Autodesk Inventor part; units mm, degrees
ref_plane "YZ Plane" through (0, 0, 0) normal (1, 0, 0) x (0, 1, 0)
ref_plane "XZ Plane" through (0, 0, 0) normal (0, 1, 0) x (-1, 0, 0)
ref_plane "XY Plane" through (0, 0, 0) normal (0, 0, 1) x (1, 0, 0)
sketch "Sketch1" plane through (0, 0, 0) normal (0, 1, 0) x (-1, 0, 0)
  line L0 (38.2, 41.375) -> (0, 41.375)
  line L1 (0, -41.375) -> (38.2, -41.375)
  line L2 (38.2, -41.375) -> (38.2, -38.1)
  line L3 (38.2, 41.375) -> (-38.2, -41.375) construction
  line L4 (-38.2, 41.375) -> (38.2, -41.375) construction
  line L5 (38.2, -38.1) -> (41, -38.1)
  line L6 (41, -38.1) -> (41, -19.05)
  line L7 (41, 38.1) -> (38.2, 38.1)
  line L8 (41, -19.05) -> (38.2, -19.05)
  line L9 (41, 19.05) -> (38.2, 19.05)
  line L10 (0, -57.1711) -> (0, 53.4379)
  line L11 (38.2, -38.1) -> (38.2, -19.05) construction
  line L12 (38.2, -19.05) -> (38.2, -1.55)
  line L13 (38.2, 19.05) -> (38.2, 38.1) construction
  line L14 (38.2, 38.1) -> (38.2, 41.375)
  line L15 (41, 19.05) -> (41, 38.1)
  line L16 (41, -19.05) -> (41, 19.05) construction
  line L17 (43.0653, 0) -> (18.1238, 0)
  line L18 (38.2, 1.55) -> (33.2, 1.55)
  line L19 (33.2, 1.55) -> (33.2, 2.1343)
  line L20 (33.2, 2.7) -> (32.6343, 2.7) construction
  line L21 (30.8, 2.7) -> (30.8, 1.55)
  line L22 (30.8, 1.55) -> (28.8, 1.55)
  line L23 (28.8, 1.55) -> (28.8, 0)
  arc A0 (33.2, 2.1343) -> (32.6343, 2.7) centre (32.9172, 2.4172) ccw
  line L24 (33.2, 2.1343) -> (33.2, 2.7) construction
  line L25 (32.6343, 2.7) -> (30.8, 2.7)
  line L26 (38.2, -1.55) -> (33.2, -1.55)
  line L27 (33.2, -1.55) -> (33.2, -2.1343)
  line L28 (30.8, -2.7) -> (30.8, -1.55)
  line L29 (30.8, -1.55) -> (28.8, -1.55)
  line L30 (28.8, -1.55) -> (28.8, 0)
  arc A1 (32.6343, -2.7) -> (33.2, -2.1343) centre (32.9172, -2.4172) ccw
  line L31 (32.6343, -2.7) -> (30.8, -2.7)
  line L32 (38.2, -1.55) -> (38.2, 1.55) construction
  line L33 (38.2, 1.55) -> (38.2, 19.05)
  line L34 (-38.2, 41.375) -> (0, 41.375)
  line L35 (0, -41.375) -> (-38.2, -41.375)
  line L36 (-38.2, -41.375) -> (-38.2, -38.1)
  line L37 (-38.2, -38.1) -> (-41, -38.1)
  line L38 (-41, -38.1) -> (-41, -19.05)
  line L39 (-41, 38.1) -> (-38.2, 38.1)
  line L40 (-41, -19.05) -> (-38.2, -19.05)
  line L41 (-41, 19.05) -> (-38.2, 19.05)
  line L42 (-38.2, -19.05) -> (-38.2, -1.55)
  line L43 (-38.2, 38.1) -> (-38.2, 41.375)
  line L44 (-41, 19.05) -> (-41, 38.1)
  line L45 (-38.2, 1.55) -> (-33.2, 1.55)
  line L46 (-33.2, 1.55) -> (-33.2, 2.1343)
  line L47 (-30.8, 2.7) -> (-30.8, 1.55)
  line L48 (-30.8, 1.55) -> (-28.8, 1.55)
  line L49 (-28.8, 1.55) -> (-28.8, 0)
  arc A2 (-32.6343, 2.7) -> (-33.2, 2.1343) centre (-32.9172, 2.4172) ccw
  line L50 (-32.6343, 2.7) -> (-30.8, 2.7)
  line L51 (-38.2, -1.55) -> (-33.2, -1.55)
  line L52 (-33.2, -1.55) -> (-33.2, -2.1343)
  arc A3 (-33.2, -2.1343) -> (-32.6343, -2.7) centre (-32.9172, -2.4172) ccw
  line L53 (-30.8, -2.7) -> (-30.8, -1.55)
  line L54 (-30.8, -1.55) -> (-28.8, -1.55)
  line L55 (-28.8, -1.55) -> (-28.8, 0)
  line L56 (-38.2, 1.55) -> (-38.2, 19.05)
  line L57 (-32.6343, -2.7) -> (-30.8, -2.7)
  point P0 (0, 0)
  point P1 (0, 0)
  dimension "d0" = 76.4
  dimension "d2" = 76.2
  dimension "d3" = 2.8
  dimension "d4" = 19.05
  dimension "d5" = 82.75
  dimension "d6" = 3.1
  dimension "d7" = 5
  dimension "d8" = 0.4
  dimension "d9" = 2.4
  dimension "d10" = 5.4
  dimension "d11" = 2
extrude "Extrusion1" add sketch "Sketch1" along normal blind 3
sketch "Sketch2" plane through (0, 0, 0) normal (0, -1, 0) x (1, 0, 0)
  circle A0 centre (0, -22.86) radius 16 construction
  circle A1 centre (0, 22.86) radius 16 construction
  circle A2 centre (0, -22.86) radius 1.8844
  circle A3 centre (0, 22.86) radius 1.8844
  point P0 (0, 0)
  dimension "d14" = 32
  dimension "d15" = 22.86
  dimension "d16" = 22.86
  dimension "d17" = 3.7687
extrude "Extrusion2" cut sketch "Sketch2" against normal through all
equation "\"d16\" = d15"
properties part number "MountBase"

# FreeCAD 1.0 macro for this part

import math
import FreeCAD as App
import Part
import Sketcher

V = App.Vector

doc = App.newDocument("Part")
body = doc.addObject("PartDesign::Body", "Body")

# Sketch on XZ plane
sketch1 = body.newObject("Sketcher::SketchObject", "Sketch")
sketch1.AttachmentSupport = (doc.getObject("XZ_Plane"), [""])
sketch1.MapMode = "FlatFace"
sketch1.addGeometry(Part.LineSegment(V(-38.2, 38.1, 0), V(-38.2, 41.38, 0)), False)
sketch1.addGeometry(Part.LineSegment(V(-38.2, 41.38, 0), V(38.2, 41.38, 0)), False)
sketch1.addGeometry(Part.LineSegment(V(38.2, 41.38, 0), V(38.2, 38.1, 0)), False)
sketch1.addGeometry(Part.LineSegment(V(38.2, 38.1, 0), V(41, 38.1, 0)), False)
sketch1.addGeometry(Part.LineSegment(V(41, 38.1, 0), V(41, 19.05, 0)), False)
sketch1.addGeometry(Part.LineSegment(V(41, 19.05, 0), V(38.2, 19.05, 0)), False)
sketch1.addGeometry(Part.LineSegment(V(38.2, 19.05, 0), V(38.2, 1.55, 0)), False)
sketch1.addGeometry(Part.LineSegment(V(38.2, 1.55, 0), V(33.2, 1.55, 0)), False)
sketch1.addGeometry(Part.LineSegment(V(33.2, 1.55, 0), V(33.2, 2.13, 0)), False)
sketch1.addGeometry(Part.ArcOfCircle(Part.Circle(V(32.92, 2.42, 0), V(0, 0, 1), 0.4), math.radians(-45), math.radians(135)), False)
sketch1.addGeometry(Part.LineSegment(V(32.63, 2.7, 0), V(30.8, 2.7, 0)), False)
sketch1.addGeometry(Part.LineSegment(V(30.8, 2.7, 0), V(30.8, 1.55, 0)), False)
sketch1.addGeometry(Part.LineSegment(V(30.8, 1.55, 0), V(28.8, 1.55, 0)), False)
sketch1.addGeometry(Part.LineSegment(V(28.8, 1.55, 0), V(28.8, -1.55, 0)), False)
sketch1.addGeometry(Part.LineSegment(V(28.8, -1.55, 0), V(30.8, -1.55, 0)), False)
sketch1.addGeometry(Part.LineSegment(V(30.8, -1.55, 0), V(30.8, -2.7, 0)), False)
sketch1.addGeometry(Part.LineSegment(V(30.8, -2.7, 0), V(32.63, -2.7, 0)), False)
sketch1.addGeometry(Part.ArcOfCircle(Part.Circle(V(32.92, -2.42, 0), V(0, 0, 1), 0.4), math.radians(-135), math.radians(45)), False)
sketch1.addGeometry(Part.LineSegment(V(33.2, -2.13, 0), V(33.2, -1.55, 0)), False)
sketch1.addGeometry(Part.LineSegment(V(33.2, -1.55, 0), V(38.2, -1.55, 0)), False)
sketch1.addGeometry(Part.LineSegment(V(38.2, -1.55, 0), V(38.2, -19.05, 0)), False)
sketch1.addGeometry(Part.LineSegment(V(38.2, -19.05, 0), V(41, -19.05, 0)), False)
sketch1.addGeometry(Part.LineSegment(V(41, -19.05, 0), V(41, -38.1, 0)), False)
sketch1.addGeometry(Part.LineSegment(V(41, -38.1, 0), V(38.2, -38.1, 0)), False)
sketch1.addGeometry(Part.LineSegment(V(38.2, -38.1, 0), V(38.2, -41.38, 0)), False)
sketch1.addGeometry(Part.LineSegment(V(38.2, -41.38, 0), V(-38.2, -41.38, 0)), False)
sketch1.addGeometry(Part.LineSegment(V(-38.2, -41.38, 0), V(-38.2, -38.1, 0)), False)
sketch1.addGeometry(Part.LineSegment(V(-38.2, -38.1, 0), V(-41, -38.1, 0)), False)
sketch1.addGeometry(Part.LineSegment(V(-41, -38.1, 0), V(-41, -19.05, 0)), False)
sketch1.addGeometry(Part.LineSegment(V(-41, -19.05, 0), V(-38.2, -19.05, 0)), False)
sketch1.addGeometry(Part.LineSegment(V(-38.2, -19.05, 0), V(-38.2, -1.55, 0)), False)
sketch1.addGeometry(Part.LineSegment(V(-38.2, -1.55, 0), V(-33.2, -1.55, 0)), False)
sketch1.addGeometry(Part.LineSegment(V(-33.2, -1.55, 0), V(-33.2, -2.13, 0)), False)
sketch1.addGeometry(Part.ArcOfCircle(Part.Circle(V(-32.92, -2.42, 0), V(0, 0, 1), 0.4), math.radians(135), math.radians(315)), False)
sketch1.addGeometry(Part.LineSegment(V(-32.63, -2.7, 0), V(-30.8, -2.7, 0)), False)
sketch1.addGeometry(Part.LineSegment(V(-30.8, -2.7, 0), V(-30.8, -1.55, 0)), False)
sketch1.addGeometry(Part.LineSegment(V(-30.8, -1.55, 0), V(-28.8, -1.55, 0)), False)
sketch1.addGeometry(Part.LineSegment(V(-28.8, -1.55, 0), V(-28.8, 1.55, 0)), False)
sketch1.addGeometry(Part.LineSegment(V(-28.8, 1.55, 0), V(-30.8, 1.55, 0)), False)
sketch1.addGeometry(Part.LineSegment(V(-30.8, 1.55, 0), V(-30.8, 2.7, 0)), False)
sketch1.addGeometry(Part.LineSegment(V(-30.8, 2.7, 0), V(-32.63, 2.7, 0)), False)
sketch1.addGeometry(Part.ArcOfCircle(Part.Circle(V(-32.92, 2.42, 0), V(0, 0, 1), 0.4), math.radians(45), math.radians(225)), False)
sketch1.addGeometry(Part.LineSegment(V(-33.2, 2.13, 0), V(-33.2, 1.55, 0)), False)
sketch1.addGeometry(Part.LineSegment(V(-33.2, 1.55, 0), V(-38.2, 1.55, 0)), False)
sketch1.addGeometry(Part.LineSegment(V(-38.2, 1.55, 0), V(-38.2, 19.05, 0)), False)
sketch1.addGeometry(Part.LineSegment(V(-38.2, 19.05, 0), V(-41, 19.05, 0)), False)
sketch1.addGeometry(Part.LineSegment(V(-41, 19.05, 0), V(-41, 38.1, 0)), False)
sketch1.addGeometry(Part.LineSegment(V(-41, 38.1, 0), V(-38.2, 38.1, 0)), False)
sketch1.addConstraint(Sketcher.Constraint("Coincident", 0, 2, 1, 1))
sketch1.addConstraint(Sketcher.Constraint("Coincident", 1, 2, 2, 1))
sketch1.addConstraint(Sketcher.Constraint("Coincident", 2, 2, 3, 1))
sketch1.addConstraint(Sketcher.Constraint("Coincident", 3, 2, 4, 1))
sketch1.addConstraint(Sketcher.Constraint("Coincident", 4, 2, 5, 1))
sketch1.addConstraint(Sketcher.Constraint("Coincident", 5, 2, 6, 1))
sketch1.addConstraint(Sketcher.Constraint("Coincident", 6, 2, 7, 1))
sketch1.addConstraint(Sketcher.Constraint("Coincident", 7, 2, 8, 1))
sketch1.addConstraint(Sketcher.Constraint("Coincident", 8, 2, 9, 1))
sketch1.addConstraint(Sketcher.Constraint("Coincident", 9, 2, 10, 1))
sketch1.addConstraint(Sketcher.Constraint("Coincident", 10, 2, 11, 1))
sketch1.addConstraint(Sketcher.Constraint("Coincident", 11, 2, 12, 1))
sketch1.addConstraint(Sketcher.Constraint("Coincident", 12, 2, 13, 1))
sketch1.addConstraint(Sketcher.Constraint("Coincident", 13, 2, 14, 1))
sketch1.addConstraint(Sketcher.Constraint("Coincident", 14, 2, 15, 1))
sketch1.addConstraint(Sketcher.Constraint("Coincident", 15, 2, 16, 1))
sketch1.addConstraint(Sketcher.Constraint("Coincident", 16, 2, 17, 1))
sketch1.addConstraint(Sketcher.Constraint("Coincident", 17, 2, 18, 1))
sketch1.addConstraint(Sketcher.Constraint("Coincident", 18, 2, 19, 1))
sketch1.addConstraint(Sketcher.Constraint("Coincident", 19, 2, 20, 1))
sketch1.addConstraint(Sketcher.Constraint("Coincident", 20, 2, 21, 1))
sketch1.addConstraint(Sketcher.Constraint("Coincident", 21, 2, 22, 1))
sketch1.addConstraint(Sketcher.Constraint("Coincident", 22, 2, 23, 1))
sketch1.addConstraint(Sketcher.Constraint("Coincident", 23, 2, 24, 1))
sketch1.addConstraint(Sketcher.Constraint("Coincident", 24, 2, 25, 1))
sketch1.addConstraint(Sketcher.Constraint("Coincident", 25, 2, 26, 1))
sketch1.addConstraint(Sketcher.Constraint("Coincident", 26, 2, 27, 1))
sketch1.addConstraint(Sketcher.Constraint("Coincident", 27, 2, 28, 1))
sketch1.addConstraint(Sketcher.Constraint("Coincident", 28, 2, 29, 1))
sketch1.addConstraint(Sketcher.Constraint("Coincident", 29, 2, 30, 1))
sketch1.addConstraint(Sketcher.Constraint("Coincident", 30, 2, 31, 1))
sketch1.addConstraint(Sketcher.Constraint("Coincident", 31, 2, 32, 1))
sketch1.addConstraint(Sketcher.Constraint("Coincident", 32, 2, 33, 1))
sketch1.addConstraint(Sketcher.Constraint("Coincident", 33, 2, 34, 1))
sketch1.addConstraint(Sketcher.Constraint("Coincident", 34, 2, 35, 1))
sketch1.addConstraint(Sketcher.Constraint("Coincident", 35, 2, 36, 1))
sketch1.addConstraint(Sketcher.Constraint("Coincident", 36, 2, 37, 1))
sketch1.addConstraint(Sketcher.Constraint("Coincident", 37, 2, 38, 1))
sketch1.addConstraint(Sketcher.Constraint("Coincident", 38, 2, 39, 1))
sketch1.addConstraint(Sketcher.Constraint("Coincident", 39, 2, 40, 1))
sketch1.addConstraint(Sketcher.Constraint("Coincident", 40, 2, 41, 1))
sketch1.addConstraint(Sketcher.Constraint("Coincident", 41, 2, 42, 1))
sketch1.addConstraint(Sketcher.Constraint("Coincident", 42, 2, 43, 1))
sketch1.addConstraint(Sketcher.Constraint("Coincident", 43, 2, 44, 1))
sketch1.addConstraint(Sketcher.Constraint("Coincident", 44, 2, 45, 1))
sketch1.addConstraint(Sketcher.Constraint("Coincident", 45, 2, 46, 1))
sketch1.addConstraint(Sketcher.Constraint("Coincident", 46, 2, 47, 1))
sketch1.addConstraint(Sketcher.Constraint("Coincident", 47, 2, 0, 1))
sketch1.addConstraint(Sketcher.Constraint("Vertical", 0))
sketch1.addConstraint(Sketcher.Constraint("Horizontal", 1))
sketch1.addConstraint(Sketcher.Constraint("Vertical", 2))
sketch1.addConstraint(Sketcher.Constraint("Horizontal", 3))
sketch1.addConstraint(Sketcher.Constraint("Vertical", 4))
sketch1.addConstraint(Sketcher.Constraint("Horizontal", 5))
sketch1.addConstraint(Sketcher.Constraint("Vertical", 6))
sketch1.addConstraint(Sketcher.Constraint("Horizontal", 7))
sketch1.addConstraint(Sketcher.Constraint("Vertical", 8))
sketch1.addConstraint(Sketcher.Constraint("Horizontal", 10))
sketch1.addConstraint(Sketcher.Constraint("Vertical", 11))
sketch1.addConstraint(Sketcher.Constraint("Horizontal", 12))
sketch1.addConstraint(Sketcher.Constraint("Vertical", 13))
sketch1.addConstraint(Sketcher.Constraint("Horizontal", 14))
sketch1.addConstraint(Sketcher.Constraint("Vertical", 15))
sketch1.addConstraint(Sketcher.Constraint("Horizontal", 16))
sketch1.addConstraint(Sketcher.Constraint("Vertical", 18))
sketch1.addConstraint(Sketcher.Constraint("Horizontal", 19))
sketch1.addConstraint(Sketcher.Constraint("Vertical", 20))
sketch1.addConstraint(Sketcher.Constraint("Horizontal", 21))
sketch1.addConstraint(Sketcher.Constraint("Vertical", 22))
sketch1.addConstraint(Sketcher.Constraint("Horizontal", 23))
sketch1.addConstraint(Sketcher.Constraint("Vertical", 24))
sketch1.addConstraint(Sketcher.Constraint("Horizontal", 25))
sketch1.addConstraint(Sketcher.Constraint("Vertical", 26))
sketch1.addConstraint(Sketcher.Constraint("Horizontal", 27))
sketch1.addConstraint(Sketcher.Constraint("Vertical", 28))
sketch1.addConstraint(Sketcher.Constraint("Horizontal", 29))
sketch1.addConstraint(Sketcher.Constraint("Vertical", 30))
sketch1.addConstraint(Sketcher.Constraint("Horizontal", 31))
sketch1.addConstraint(Sketcher.Constraint("Vertical", 32))
sketch1.addConstraint(Sketcher.Constraint("Horizontal", 34))
sketch1.addConstraint(Sketcher.Constraint("Vertical", 35))
sketch1.addConstraint(Sketcher.Constraint("Horizontal", 36))
sketch1.addConstraint(Sketcher.Constraint("Vertical", 37))
sketch1.addConstraint(Sketcher.Constraint("Horizontal", 38))
sketch1.addConstraint(Sketcher.Constraint("Vertical", 39))
sketch1.addConstraint(Sketcher.Constraint("Horizontal", 40))
sketch1.addConstraint(Sketcher.Constraint("Vertical", 42))
sketch1.addConstraint(Sketcher.Constraint("Horizontal", 43))
sketch1.addConstraint(Sketcher.Constraint("Vertical", 44))
sketch1.addConstraint(Sketcher.Constraint("Horizontal", 45))
sketch1.addConstraint(Sketcher.Constraint("Vertical", 46))
sketch1.addConstraint(Sketcher.Constraint("Horizontal", 47))
sketch1.addConstraint(Sketcher.Constraint("Equal", 9, 17))
sketch1.addConstraint(Sketcher.Constraint("Equal", 17, 33))
sketch1.addConstraint(Sketcher.Constraint("Equal", 33, 41))
sketch1.addConstraint(Sketcher.Constraint("Symmetric", 9, 3, 33, 3, -1, 1))
sketch1.addConstraint(Sketcher.Constraint("Symmetric", 17, 3, 41, 3, -1, 1))
sketch1.addConstraint(Sketcher.Constraint("Symmetric", 0, 2, 24, 2, -1, 1))
sketch1.addConstraint(Sketcher.Constraint("Symmetric", 2, 2, 26, 2, -1, 1))
sketch1.addConstraint(Sketcher.Constraint("Symmetric", 4, 2, 28, 2, -1, 1))
sketch1.addConstraint(Sketcher.Constraint("Symmetric", 6, 2, 30, 2, -1, 1))
sketch1.addConstraint(Sketcher.Constraint("Symmetric", 10, 2, 34, 2, -1, 1))
sketch1.addConstraint(Sketcher.Constraint("Symmetric", 12, 2, 36, 2, -1, 1))
sketch1.addConstraint(Sketcher.Constraint("Symmetric", 14, 2, 38, 2, -1, 1))
sketch1.addConstraint(Sketcher.Constraint("Symmetric", 18, 2, 42, 2, -1, 1))
sketch1.addConstraint(Sketcher.Constraint("Symmetric", 20, 2, 44, 2, -1, 1))
sketch1.addConstraint(Sketcher.Constraint("Symmetric", 22, 2, 46, 2, -1, 1))
sketch1.addConstraint(Sketcher.Constraint("Symmetric", 17, 3, 33, 3, -2))
sketch1.addConstraint(Sketcher.Constraint("Symmetric", 23, 2, 26, 2, -2))
sketch1.addConstraint(Sketcher.Constraint("Symmetric", 21, 2, 28, 2, -2))
sketch1.addConstraint(Sketcher.Constraint("Symmetric", 19, 2, 30, 2, -2))
sketch1.addConstraint(Sketcher.Constraint("Symmetric", 15, 2, 34, 2, -2))
sketch1.addConstraint(Sketcher.Constraint("Horizontal", 7, 2, 11, 2))
sketch1.addConstraint(Sketcher.Constraint("Horizontal", 14, 2, 18, 2))
sketch1.addConstraint(Sketcher.Constraint("Horizontal", 17, 2, 32, 2))
sketch1.addConstraint(Sketcher.Constraint("Horizontal", 10, 2, 39, 2))
sketch1.addConstraint(Sketcher.Constraint("Horizontal", 8, 2, 41, 2))
sketch1.addConstraint(Sketcher.Constraint("Vertical", 2, 2, 5, 2))
sketch1.addConstraint(Sketcher.Constraint("Radius", 9, 0.4))
sketch1.addConstraint(Sketcher.Constraint("DistanceX", 7, 2, 7, 1, 5.0))
sketch1.addConstraint(Sketcher.Constraint("DistanceX", 12, 2, 12, 1, 2.0))
sketch1.addConstraint(Sketcher.Constraint("DistanceX", 1, 1, 1, 2, 76.4))
sketch1.addConstraint(Sketcher.Constraint("DistanceX", 3, 1, 3, 2, 2.8))
sketch1.addConstraint(Sketcher.Constraint("DistanceY", 13, 2, 13, 1, 3.1))
sketch1.addConstraint(Sketcher.Constraint("DistanceY", 4, 2, 4, 1, 19.05))
sketch1.addConstraint(Sketcher.Constraint("DistanceX", 10, 2, 8, 2, 2.4))
sketch1.addConstraint(Sketcher.Constraint("DistanceY", -1, 1, 4, 2, 19.05))
sketch1.addConstraint(Sketcher.Constraint("DistanceY", 11, 2, 11, 1, 1.15))
sketch1.addConstraint(Sketcher.Constraint("DistanceY", 0, 1, 0, 2, 3.275))
sketch1.addConstraint(Sketcher.Constraint("DistanceX", 10, 2, 10, 1, 1.8343))
sketch1.addConstraint(Sketcher.Constraint("DistanceY", 8, 2, 9, 3, 0.283))
pad1 = body.newObject("PartDesign::Pad", "Pad")
pad1.Profile = sketch1
pad1.Length = 3
pad1.Reversed = True

# Sketch on XZ plane
sketch2 = body.newObject("Sketcher::SketchObject", "Sketch001")
sketch2.AttachmentSupport = (doc.getObject("XZ_Plane"), [""])
sketch2.MapMode = "FlatFace"
sketch2.addGeometry(Part.Circle(V(0, -22.9, 0), V(0, 0, 1), 1.9), False)
sketch2.addGeometry(Part.Circle(V(0, 22.9, 0), V(0, 0, 1), 1.9), False)
sketch2.addConstraint(Sketcher.Constraint("Equal", 0, 1))
sketch2.addConstraint(Sketcher.Constraint("Symmetric", 0, 3, 1, 3, -1, 1))
sketch2.addConstraint(Sketcher.Constraint("PointOnObject", 0, 3, -2))
sketch2.addConstraint(Sketcher.Constraint("Diameter", 0, 3.7688))
sketch2.addConstraint(Sketcher.Constraint("DistanceY", 0, 3, -1, 1, 22.86))
pocket1 = body.newObject("PartDesign::Pocket", "Pocket")
pocket1.Profile = sketch2
pocket1.Type = "ThroughAll"

doc.recompute()
